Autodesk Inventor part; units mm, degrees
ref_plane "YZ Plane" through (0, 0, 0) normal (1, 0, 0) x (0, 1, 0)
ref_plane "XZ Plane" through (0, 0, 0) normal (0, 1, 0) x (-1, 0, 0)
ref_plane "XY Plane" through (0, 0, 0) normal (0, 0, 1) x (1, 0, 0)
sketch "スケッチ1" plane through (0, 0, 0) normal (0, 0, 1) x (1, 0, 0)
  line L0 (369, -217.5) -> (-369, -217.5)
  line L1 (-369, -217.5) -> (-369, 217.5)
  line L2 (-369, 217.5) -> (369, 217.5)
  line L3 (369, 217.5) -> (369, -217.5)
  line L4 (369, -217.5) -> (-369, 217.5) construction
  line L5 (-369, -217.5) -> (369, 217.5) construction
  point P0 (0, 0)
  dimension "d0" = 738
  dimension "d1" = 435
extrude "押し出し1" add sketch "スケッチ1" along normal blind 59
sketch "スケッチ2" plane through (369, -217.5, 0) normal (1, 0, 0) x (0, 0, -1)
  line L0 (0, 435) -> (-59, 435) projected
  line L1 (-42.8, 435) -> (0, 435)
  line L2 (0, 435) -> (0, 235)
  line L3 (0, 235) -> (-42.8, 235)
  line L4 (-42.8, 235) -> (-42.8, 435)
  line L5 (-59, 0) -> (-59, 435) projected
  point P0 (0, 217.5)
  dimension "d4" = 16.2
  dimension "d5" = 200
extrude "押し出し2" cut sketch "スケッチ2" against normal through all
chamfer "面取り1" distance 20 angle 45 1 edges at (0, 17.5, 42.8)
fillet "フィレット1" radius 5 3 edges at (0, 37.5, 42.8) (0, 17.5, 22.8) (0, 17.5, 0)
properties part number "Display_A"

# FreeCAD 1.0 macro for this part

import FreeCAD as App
import Part
import Sketcher

V = App.Vector
Q = App.Units.Quantity


def edges_at(feature, points):
    """Names of the edges that pass closest to the given points."""
    edges = feature.Shape.Edges
    near = lambda p: min(range(len(edges)), key=lambda i: edges[i].distToShape(Part.Vertex(*p))[0])
    return sorted({f"Edge{near(p) + 1}" for p in points})


def add_polygon(sketch, points):
    """Adds a closed chain of lines whose ends are joined by coincident constraints."""
    first, n = sketch.GeometryCount, len(points)
    for a, b in zip(points, points[1:] + points[:1]):
        sketch.addGeometry(Part.LineSegment(App.Vector(*a, 0), App.Vector(*b, 0)), False)
    for i in range(n):
        sketch.addConstraint(Sketcher.Constraint("Coincident", first + i, 2, first + (i + 1) % n, 1))

doc = App.newDocument("Part")
body = doc.addObject("PartDesign::Body", "Body")

sketch1 = doc.addObject("Sketcher::SketchObject", "Sketch")
body.addObject(sketch1)
sketch1.AttachmentSupport = (doc.XY_Plane, [""])
sketch1.MapMode = "FlatFace"
add_polygon(sketch1, [(-369, -218), (369, -218), (369, 218), (-369, 218)])
sketch1.addConstraint(Sketcher.Constraint("Horizontal", 0))
sketch1.addConstraint(Sketcher.Constraint("Vertical", 1))
sketch1.addConstraint(Sketcher.Constraint("Horizontal", 2))
sketch1.addConstraint(Sketcher.Constraint("Vertical", 3))
sketch1.addConstraint(Sketcher.Constraint("Symmetric", 0, 2, 2, 2, -1, 1))
sketch1.addConstraint(Sketcher.Constraint("DistanceX", 0, 1, 0, 2, Q("738 mm")))
sketch1.addConstraint(Sketcher.Constraint("DistanceY", 1, 1, 1, 2, Q("435 mm")))
pad1 = doc.addObject("PartDesign::Pad", "Pad")
body.addObject(pad1)
pad1.Profile = sketch1
pad1.Length = 59

sketch2 = doc.addObject("Sketcher::SketchObject", "Sketch001")
body.addObject(sketch2)
sketch2.AttachmentSupport = (doc.YZ_Plane, [""])
sketch2.MapMode = "FlatFace"
sketch2.AttachmentOffset = App.Placement(V(0, 0, 369), App.Rotation())
add_polygon(sketch2, [(18, 0), (218, 0), (218, 43), (18, 43)])
sketch2.addConstraint(Sketcher.Constraint("Horizontal", 0))
sketch2.addConstraint(Sketcher.Constraint("Vertical", 1))
sketch2.addConstraint(Sketcher.Constraint("Horizontal", 2))
sketch2.addConstraint(Sketcher.Constraint("Vertical", 3))
sketch2.addConstraint(Sketcher.Constraint("PointOnObject", 0, 2, -1))
sketch2.addConstraint(Sketcher.Constraint("DistanceX", 0, 1, 0, 2, Q("200 mm")))
sketch2.addConstraint(Sketcher.Constraint("DistanceY", 1, 1, 1, 2, Q("42.8 mm")))
sketch2.addConstraint(Sketcher.Constraint("DistanceX", -1, 1, 0, 2, Q("217.5 mm")))
pocket1 = doc.addObject("PartDesign::Pocket", "Pocket")
body.addObject(pocket1)
pocket1.Profile = sketch2
pocket1.Type = "ThroughAll"
doc.recompute()

chamfer = doc.addObject("PartDesign::Chamfer", "Chamfer")
body.addObject(chamfer)
chamfer.Base = (pocket1, edges_at(pocket1, [(0, 17.5, 42.8)]))
chamfer.Size = 20
doc.recompute()

fillet = doc.addObject("PartDesign::Fillet", "Fillet")
body.addObject(fillet)
fillet.Base = (chamfer, edges_at(chamfer, [(0, 37.5, 42.8), (0, 17.5, 22.8), (0, 17.5, 0)]))
fillet.Radius = 5

doc.recompute()
